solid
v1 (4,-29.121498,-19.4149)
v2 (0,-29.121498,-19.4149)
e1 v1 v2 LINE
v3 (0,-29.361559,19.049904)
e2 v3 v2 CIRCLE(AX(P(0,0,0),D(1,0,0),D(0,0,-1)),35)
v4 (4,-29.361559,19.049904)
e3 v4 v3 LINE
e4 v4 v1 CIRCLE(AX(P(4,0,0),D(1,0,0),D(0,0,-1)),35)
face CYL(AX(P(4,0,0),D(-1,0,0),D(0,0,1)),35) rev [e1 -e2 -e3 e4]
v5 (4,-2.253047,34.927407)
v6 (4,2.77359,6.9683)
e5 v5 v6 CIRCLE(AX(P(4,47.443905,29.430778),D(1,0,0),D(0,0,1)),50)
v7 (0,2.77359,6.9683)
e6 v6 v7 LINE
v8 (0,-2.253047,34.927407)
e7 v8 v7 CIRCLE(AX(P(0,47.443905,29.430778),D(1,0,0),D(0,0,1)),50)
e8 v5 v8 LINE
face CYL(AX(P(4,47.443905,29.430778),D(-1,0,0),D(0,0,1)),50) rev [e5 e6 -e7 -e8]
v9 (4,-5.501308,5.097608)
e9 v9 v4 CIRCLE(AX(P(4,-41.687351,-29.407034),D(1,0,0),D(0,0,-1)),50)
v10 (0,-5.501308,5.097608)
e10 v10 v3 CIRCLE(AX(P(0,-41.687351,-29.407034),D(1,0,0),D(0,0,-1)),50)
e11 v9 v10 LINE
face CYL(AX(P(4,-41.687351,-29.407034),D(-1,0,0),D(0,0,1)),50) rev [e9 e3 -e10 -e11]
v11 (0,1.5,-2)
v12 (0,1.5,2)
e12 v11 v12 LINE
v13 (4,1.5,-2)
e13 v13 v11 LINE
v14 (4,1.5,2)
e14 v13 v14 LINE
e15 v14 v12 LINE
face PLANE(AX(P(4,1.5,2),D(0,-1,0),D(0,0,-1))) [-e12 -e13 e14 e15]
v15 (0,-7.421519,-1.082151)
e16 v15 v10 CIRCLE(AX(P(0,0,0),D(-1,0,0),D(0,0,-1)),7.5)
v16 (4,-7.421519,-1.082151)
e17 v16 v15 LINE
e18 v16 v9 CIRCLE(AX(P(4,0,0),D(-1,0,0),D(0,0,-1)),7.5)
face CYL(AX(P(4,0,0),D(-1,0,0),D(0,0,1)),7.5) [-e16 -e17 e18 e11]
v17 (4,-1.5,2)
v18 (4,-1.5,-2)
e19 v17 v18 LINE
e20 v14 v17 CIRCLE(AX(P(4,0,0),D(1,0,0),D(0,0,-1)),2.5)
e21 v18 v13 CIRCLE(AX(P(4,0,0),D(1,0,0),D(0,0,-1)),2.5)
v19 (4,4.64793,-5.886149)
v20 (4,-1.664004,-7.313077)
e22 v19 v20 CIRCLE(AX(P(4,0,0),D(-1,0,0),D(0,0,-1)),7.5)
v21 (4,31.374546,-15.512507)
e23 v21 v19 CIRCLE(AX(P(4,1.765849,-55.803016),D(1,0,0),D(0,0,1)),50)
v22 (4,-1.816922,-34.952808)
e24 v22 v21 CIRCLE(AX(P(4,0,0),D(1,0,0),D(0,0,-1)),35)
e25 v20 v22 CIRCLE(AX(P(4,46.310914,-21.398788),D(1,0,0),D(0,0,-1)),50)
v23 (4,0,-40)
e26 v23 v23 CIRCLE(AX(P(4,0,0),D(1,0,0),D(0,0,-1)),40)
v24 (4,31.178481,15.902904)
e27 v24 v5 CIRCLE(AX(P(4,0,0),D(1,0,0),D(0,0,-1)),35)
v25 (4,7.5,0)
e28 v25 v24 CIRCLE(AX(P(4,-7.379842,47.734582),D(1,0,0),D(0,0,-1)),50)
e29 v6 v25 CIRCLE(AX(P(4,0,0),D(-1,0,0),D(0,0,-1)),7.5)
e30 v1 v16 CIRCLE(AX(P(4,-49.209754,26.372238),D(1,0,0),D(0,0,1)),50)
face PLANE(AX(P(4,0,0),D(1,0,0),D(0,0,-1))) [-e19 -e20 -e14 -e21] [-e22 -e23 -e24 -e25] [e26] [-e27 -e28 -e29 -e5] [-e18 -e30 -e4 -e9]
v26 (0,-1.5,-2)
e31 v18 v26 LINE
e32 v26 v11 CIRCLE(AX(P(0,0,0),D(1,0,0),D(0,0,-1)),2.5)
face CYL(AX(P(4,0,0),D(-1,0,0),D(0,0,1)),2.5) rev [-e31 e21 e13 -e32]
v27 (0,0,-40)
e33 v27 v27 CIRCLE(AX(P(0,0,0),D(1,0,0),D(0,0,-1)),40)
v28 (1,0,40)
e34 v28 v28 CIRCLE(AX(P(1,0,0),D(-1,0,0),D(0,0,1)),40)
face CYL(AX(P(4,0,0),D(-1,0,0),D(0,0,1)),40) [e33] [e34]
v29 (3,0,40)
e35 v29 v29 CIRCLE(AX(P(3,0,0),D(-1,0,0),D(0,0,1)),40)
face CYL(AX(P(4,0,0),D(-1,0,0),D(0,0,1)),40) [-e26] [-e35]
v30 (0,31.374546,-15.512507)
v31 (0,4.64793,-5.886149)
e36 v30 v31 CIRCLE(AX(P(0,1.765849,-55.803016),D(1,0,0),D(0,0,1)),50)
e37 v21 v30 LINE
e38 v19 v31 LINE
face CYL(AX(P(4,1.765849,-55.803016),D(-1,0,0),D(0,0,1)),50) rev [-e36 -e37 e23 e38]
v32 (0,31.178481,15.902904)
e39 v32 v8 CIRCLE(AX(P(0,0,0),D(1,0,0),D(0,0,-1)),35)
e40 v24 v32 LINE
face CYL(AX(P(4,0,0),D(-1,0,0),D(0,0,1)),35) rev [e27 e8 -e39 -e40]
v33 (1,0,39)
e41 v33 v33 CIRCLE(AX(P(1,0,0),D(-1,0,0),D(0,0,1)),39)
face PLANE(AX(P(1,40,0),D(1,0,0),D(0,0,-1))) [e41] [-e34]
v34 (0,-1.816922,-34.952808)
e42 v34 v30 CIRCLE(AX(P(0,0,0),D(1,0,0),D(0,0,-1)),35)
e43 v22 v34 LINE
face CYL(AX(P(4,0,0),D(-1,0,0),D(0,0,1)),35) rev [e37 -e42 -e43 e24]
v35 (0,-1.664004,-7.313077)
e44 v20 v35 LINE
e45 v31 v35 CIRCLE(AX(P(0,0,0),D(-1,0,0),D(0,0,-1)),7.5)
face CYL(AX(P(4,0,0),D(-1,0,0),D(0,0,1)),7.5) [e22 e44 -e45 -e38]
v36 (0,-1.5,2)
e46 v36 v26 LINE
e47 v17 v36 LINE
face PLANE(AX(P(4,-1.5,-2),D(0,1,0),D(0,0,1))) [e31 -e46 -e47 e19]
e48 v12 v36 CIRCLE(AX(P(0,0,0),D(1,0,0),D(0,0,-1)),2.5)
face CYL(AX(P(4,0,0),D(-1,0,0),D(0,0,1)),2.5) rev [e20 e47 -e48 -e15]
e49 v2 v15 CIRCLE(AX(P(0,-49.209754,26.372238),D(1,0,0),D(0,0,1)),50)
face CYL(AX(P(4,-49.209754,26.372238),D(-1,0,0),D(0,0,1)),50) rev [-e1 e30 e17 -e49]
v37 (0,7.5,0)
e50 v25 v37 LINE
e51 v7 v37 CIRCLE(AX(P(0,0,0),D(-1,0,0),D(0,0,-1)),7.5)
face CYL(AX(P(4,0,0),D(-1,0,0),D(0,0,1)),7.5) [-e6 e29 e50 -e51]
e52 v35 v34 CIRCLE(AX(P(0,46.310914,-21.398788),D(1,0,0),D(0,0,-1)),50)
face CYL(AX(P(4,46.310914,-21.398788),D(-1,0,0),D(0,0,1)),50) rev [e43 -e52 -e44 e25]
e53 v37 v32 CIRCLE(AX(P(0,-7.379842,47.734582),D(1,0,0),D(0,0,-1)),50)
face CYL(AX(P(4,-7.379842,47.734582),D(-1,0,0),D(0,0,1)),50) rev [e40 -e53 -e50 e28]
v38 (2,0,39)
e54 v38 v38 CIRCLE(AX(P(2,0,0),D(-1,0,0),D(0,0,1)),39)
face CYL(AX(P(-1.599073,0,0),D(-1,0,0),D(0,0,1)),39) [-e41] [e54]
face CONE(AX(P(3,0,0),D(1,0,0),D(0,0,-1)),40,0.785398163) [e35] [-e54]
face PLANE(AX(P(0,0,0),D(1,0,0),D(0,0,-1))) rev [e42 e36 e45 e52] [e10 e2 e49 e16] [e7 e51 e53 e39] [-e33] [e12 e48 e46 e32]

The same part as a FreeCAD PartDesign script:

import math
import FreeCAD as App
import Part
import Sketcher
Q = App.Units.Quantity


def add_polygon(sketch, points):
    """Adds a closed chain of lines whose ends are joined by coincident constraints."""
    first, n = sketch.GeometryCount, len(points)
    for a, b in zip(points, points[1:] + points[:1]):
        sketch.addGeometry(Part.LineSegment(App.Vector(*a, 0), App.Vector(*b, 0)), False)
    for i in range(n):
        sketch.addConstraint(Sketcher.Constraint("Coincident", first + i, 2, first + (i + 1) % n, 1))

doc = App.newDocument("Part")
body = doc.addObject("PartDesign::Body", "Body")

# Sketch on YZ plane
sketch1 = body.newObject("Sketcher::SketchObject", "Sketch")
sketch1.AttachmentSupport = (doc.getObject("YZ_Plane"), [""])
sketch1.MapMode = "FlatFace"
sketch1.addGeometry([
    Part.Circle(App.Vector(0, 0, 0), App.Vector(0, 0, 1), 40),  # 0
    Part.ArcOfCircle(Part.Circle(App.Vector(0, 0, 0), App.Vector(0, 0, 1), 7.5), math.radians(137.181272), math.radians(188.295981)),  # 1
    Part.ArcOfCircle(Part.Circle(App.Vector(-49.209754, 26.372238, 0), App.Vector(0, 0, 1), 50), math.radians(-66.31143), math.radians(-33.304453)),  # 2
    Part.ArcOfCircle(Part.Circle(App.Vector(0, 0, 0), App.Vector(0, 0, 1), 35), math.radians(147.024321), math.radians(213.690841)),  # 3
    Part.ArcOfCircle(Part.Circle(App.Vector(-41.687351, -29.407034, 0), App.Vector(0, 0, 1), 50), math.radians(43.637458), math.radians(75.728567)),  # 4
    Part.ArcOfCircle(Part.Circle(App.Vector(0, 0, 0), App.Vector(0, 0, 1), 35), math.radians(27.024321), math.radians(93.690841)),  # 5
    Part.ArcOfCircle(Part.Circle(App.Vector(-7.379842, 47.734582, 0), App.Vector(0, 0, 1), 50), math.radians(-72.686679), math.radians(-39.541248)),  # 6
    Part.ArcOfCircle(Part.Circle(App.Vector(0, 0, 0), App.Vector(0, 0, 1), 7.5), math.radians(0), math.radians(68.295981)),  # 7
    Part.ArcOfCircle(Part.Circle(App.Vector(47.443905, 29.430778, 0), App.Vector(0, 0, 1), 50), math.radians(173.68857), math.radians(206.695547)),  # 8
    Part.ArcOfCircle(Part.Circle(App.Vector(0, 0, 0), App.Vector(0, 0, 1), 2.5), math.radians(53.130102), math.radians(126.869898)),  # 9
    Part.LineSegment(App.Vector(1.5, 2, 0), App.Vector(1.5, -2, 0)),  # 10
    Part.ArcOfCircle(Part.Circle(App.Vector(0, 0, 0), App.Vector(0, 0, 1), 2.5), math.radians(-126.869898), math.radians(-53.130102)),  # 11
    Part.LineSegment(App.Vector(-1.5, -2, 0), App.Vector(-1.5, 2, 0)),  # 12
    Part.ArcOfCircle(Part.Circle(App.Vector(0, 0, 0), App.Vector(0, 0, 1), 7.5), math.radians(-102.818728), math.radians(-51.704019)),  # 13
    Part.ArcOfCircle(Part.Circle(App.Vector(1.765849, -55.803016, 0), App.Vector(0, 0, 1), 50), math.radians(53.68857), math.radians(86.695547)),  # 14
    Part.ArcOfCircle(Part.Circle(App.Vector(0, 0, 0), App.Vector(0, 0, 1), 35), math.radians(-92.975679), math.radians(-26.309159)),  # 15
    Part.ArcOfCircle(Part.Circle(App.Vector(46.310914, -21.398788, 0), App.Vector(0, 0, 1), 50), math.radians(163.637458), math.radians(195.728567)),  # 16
], False)
sketch1.addConstraint([
    Sketcher.Constraint("Coincident", 1, 2, 2, 2),
    Sketcher.Constraint("Coincident", 2, 1, 3, 2),
    Sketcher.Constraint("Coincident", 3, 1, 4, 2),
    Sketcher.Constraint("Coincident", 4, 1, 1, 1),
    Sketcher.Constraint("Coincident", 5, 1, 6, 2),
    Sketcher.Constraint("Coincident", 6, 1, 7, 1),
    Sketcher.Constraint("Coincident", 7, 2, 8, 2),
    Sketcher.Constraint("Coincident", 8, 1, 5, 2),
    Sketcher.Constraint("Coincident", 9, 1, 10, 1),
    Sketcher.Constraint("Coincident", 10, 2, 11, 2),
    Sketcher.Constraint("Coincident", 11, 1, 12, 1),
    Sketcher.Constraint("Coincident", 12, 2, 9, 2),
    Sketcher.Constraint("Coincident", 13, 2, 14, 2),
    Sketcher.Constraint("Coincident", 14, 1, 15, 2),
    Sketcher.Constraint("Coincident", 15, 1, 16, 2),
    Sketcher.Constraint("Coincident", 16, 1, 13, 1),
    Sketcher.Constraint("Vertical", 10),
    Sketcher.Constraint("Vertical", 12),
    Sketcher.Constraint("Coincident", 0, 3, -1, 1),
    Sketcher.Constraint("Coincident", 1, 3, -1, 1),
    Sketcher.Constraint("Coincident", 3, 3, -1, 1),
    Sketcher.Constraint("Coincident", 5, 3, -1, 1),
    Sketcher.Constraint("Coincident", 7, 3, -1, 1),
    Sketcher.Constraint("Coincident", 9, 3, -1, 1),
    Sketcher.Constraint("Coincident", 11, 3, -1, 1),
    Sketcher.Constraint("Coincident", 13, 3, -1, 1),
    Sketcher.Constraint("Coincident", 15, 3, -1, 1),
    Sketcher.Constraint("Equal", 2, 4),
    Sketcher.Constraint("Equal", 3, 5),
    Sketcher.Constraint("Equal", 4, 6),
    Sketcher.Constraint("Equal", 1, 7),
    Sketcher.Constraint("Equal", 6, 8),
    Sketcher.Constraint("Equal", 9, 11),
    Sketcher.Constraint("Equal", 7, 13),
    Sketcher.Constraint("Equal", 8, 14),
    Sketcher.Constraint("Equal", 5, 15),
    Sketcher.Constraint("Equal", 14, 16),
    Sketcher.Constraint("PointOnObject", 6, 1, -1),
    Sketcher.Constraint("Horizontal", 10, 2, 11, 1),
    Sketcher.Constraint("Diameter", 0, Q("80 mm")),
    Sketcher.Constraint("Radius", 2, Q("50 mm")),
    Sketcher.Constraint("Radius", 3, Q("35 mm")),
    Sketcher.Constraint("Radius", 1, Q("7.5 mm")),
    Sketcher.Constraint("Radius", 9, Q("2.5 mm")),
    Sketcher.Constraint("DistanceY", 10, 2, 10, 1, Q("4 mm")),
    Sketcher.Constraint("DistanceX", 2, 1, -1, 1, Q("29.121498 mm")),
    Sketcher.Constraint("DistanceY", -1, 1, 7, 2, Q("6.9683 mm")),
    Sketcher.Constraint("DistanceX", 4, 3, 14, 3, Q("43.453199 mm")),
    Sketcher.Constraint("DistanceY", 4, 1, 8, 1, Q("29.829799 mm")),
    Sketcher.Constraint("DistanceX", 4, 3, -1, 1, Q("41.687351 mm")),
    Sketcher.Constraint("DistanceY", -1, 1, 6, 3, Q("47.734582 mm")),
    Sketcher.Constraint("DistanceX", 1, 2, -1, 1, Q("7.421519 mm")),
    Sketcher.Constraint("DistanceX", 3, 1, -1, 1, Q("29.361559 mm")),
    Sketcher.Constraint("DistanceX", -1, 1, 13, 2, Q("4.64793 mm")),
    Sketcher.Constraint("DistanceX", 15, 1, -1, 1, Q("1.816922 mm")),
    Sketcher.Constraint("DistanceX", 16, 3, 8, 3, Q("1.132991 mm")),
])
pad1 = body.newObject("PartDesign::Pad", "Pad")
pad1.Profile = sketch1
pad1.Length = 4

# Sketch on XY plane
sketch2 = body.newObject("Sketcher::SketchObject", "Sketch001")
sketch2.AttachmentSupport = (doc.getObject("XY_Plane"), [""])
sketch2.MapMode = "FlatFace"
add_polygon(sketch2, [(1, 40), (1, 39), (3, 39), (3, 40)])  # lines 0-3
sketch2.addConstraint([
    Sketcher.Constraint("Vertical", 0),
    Sketcher.Constraint("Horizontal", 1),
    Sketcher.Constraint("Vertical", 2),
    Sketcher.Constraint("Horizontal", 3),
    Sketcher.Constraint("DistanceX", 1, 1, 1, 2, Q("2 mm")),
    Sketcher.Constraint("DistanceY", 0, 2, 0, 1, Q("1 mm")),
    Sketcher.Constraint("DistanceX", -1, 1, 0, 2, Q("1 mm")),
    Sketcher.Constraint("DistanceY", -1, 1, 0, 2, Q("39 mm")),
])
groove = body.newObject("PartDesign::Groove", "Groove")
groove.Profile = sketch2
groove.ReferenceAxis = (sketch2, ["H_Axis"])
groove.Angle = 360

# Sketch on XY plane
sketch3 = body.newObject("Sketcher::SketchObject", "Sketch002")
sketch3.AttachmentSupport = (doc.getObject("XY_Plane"), [""])
sketch3.MapMode = "FlatFace"
add_polygon(sketch3, [(3, 40), (2, 39), (3, 39)])  # lines 0-2
sketch3.addConstraint([
    Sketcher.Constraint("Horizontal", 1),
    Sketcher.Constraint("Vertical", 2),
    Sketcher.Constraint("Equal", 1, 2),
    Sketcher.Constraint("DistanceX", 1, 1, 1, 2, Q("1 mm")),
    Sketcher.Constraint("DistanceX", -1, 1, 0, 2, Q("2 mm")),
    Sketcher.Constraint("DistanceY", -1, 1, 0, 2, Q("39 mm")),
])
revolution = body.newObject("PartDesign::Revolution", "Revolution")
revolution.Profile = sketch3
revolution.ReferenceAxis = (sketch3, ["H_Axis"])
revolution.Angle = 360

doc.recompute()
